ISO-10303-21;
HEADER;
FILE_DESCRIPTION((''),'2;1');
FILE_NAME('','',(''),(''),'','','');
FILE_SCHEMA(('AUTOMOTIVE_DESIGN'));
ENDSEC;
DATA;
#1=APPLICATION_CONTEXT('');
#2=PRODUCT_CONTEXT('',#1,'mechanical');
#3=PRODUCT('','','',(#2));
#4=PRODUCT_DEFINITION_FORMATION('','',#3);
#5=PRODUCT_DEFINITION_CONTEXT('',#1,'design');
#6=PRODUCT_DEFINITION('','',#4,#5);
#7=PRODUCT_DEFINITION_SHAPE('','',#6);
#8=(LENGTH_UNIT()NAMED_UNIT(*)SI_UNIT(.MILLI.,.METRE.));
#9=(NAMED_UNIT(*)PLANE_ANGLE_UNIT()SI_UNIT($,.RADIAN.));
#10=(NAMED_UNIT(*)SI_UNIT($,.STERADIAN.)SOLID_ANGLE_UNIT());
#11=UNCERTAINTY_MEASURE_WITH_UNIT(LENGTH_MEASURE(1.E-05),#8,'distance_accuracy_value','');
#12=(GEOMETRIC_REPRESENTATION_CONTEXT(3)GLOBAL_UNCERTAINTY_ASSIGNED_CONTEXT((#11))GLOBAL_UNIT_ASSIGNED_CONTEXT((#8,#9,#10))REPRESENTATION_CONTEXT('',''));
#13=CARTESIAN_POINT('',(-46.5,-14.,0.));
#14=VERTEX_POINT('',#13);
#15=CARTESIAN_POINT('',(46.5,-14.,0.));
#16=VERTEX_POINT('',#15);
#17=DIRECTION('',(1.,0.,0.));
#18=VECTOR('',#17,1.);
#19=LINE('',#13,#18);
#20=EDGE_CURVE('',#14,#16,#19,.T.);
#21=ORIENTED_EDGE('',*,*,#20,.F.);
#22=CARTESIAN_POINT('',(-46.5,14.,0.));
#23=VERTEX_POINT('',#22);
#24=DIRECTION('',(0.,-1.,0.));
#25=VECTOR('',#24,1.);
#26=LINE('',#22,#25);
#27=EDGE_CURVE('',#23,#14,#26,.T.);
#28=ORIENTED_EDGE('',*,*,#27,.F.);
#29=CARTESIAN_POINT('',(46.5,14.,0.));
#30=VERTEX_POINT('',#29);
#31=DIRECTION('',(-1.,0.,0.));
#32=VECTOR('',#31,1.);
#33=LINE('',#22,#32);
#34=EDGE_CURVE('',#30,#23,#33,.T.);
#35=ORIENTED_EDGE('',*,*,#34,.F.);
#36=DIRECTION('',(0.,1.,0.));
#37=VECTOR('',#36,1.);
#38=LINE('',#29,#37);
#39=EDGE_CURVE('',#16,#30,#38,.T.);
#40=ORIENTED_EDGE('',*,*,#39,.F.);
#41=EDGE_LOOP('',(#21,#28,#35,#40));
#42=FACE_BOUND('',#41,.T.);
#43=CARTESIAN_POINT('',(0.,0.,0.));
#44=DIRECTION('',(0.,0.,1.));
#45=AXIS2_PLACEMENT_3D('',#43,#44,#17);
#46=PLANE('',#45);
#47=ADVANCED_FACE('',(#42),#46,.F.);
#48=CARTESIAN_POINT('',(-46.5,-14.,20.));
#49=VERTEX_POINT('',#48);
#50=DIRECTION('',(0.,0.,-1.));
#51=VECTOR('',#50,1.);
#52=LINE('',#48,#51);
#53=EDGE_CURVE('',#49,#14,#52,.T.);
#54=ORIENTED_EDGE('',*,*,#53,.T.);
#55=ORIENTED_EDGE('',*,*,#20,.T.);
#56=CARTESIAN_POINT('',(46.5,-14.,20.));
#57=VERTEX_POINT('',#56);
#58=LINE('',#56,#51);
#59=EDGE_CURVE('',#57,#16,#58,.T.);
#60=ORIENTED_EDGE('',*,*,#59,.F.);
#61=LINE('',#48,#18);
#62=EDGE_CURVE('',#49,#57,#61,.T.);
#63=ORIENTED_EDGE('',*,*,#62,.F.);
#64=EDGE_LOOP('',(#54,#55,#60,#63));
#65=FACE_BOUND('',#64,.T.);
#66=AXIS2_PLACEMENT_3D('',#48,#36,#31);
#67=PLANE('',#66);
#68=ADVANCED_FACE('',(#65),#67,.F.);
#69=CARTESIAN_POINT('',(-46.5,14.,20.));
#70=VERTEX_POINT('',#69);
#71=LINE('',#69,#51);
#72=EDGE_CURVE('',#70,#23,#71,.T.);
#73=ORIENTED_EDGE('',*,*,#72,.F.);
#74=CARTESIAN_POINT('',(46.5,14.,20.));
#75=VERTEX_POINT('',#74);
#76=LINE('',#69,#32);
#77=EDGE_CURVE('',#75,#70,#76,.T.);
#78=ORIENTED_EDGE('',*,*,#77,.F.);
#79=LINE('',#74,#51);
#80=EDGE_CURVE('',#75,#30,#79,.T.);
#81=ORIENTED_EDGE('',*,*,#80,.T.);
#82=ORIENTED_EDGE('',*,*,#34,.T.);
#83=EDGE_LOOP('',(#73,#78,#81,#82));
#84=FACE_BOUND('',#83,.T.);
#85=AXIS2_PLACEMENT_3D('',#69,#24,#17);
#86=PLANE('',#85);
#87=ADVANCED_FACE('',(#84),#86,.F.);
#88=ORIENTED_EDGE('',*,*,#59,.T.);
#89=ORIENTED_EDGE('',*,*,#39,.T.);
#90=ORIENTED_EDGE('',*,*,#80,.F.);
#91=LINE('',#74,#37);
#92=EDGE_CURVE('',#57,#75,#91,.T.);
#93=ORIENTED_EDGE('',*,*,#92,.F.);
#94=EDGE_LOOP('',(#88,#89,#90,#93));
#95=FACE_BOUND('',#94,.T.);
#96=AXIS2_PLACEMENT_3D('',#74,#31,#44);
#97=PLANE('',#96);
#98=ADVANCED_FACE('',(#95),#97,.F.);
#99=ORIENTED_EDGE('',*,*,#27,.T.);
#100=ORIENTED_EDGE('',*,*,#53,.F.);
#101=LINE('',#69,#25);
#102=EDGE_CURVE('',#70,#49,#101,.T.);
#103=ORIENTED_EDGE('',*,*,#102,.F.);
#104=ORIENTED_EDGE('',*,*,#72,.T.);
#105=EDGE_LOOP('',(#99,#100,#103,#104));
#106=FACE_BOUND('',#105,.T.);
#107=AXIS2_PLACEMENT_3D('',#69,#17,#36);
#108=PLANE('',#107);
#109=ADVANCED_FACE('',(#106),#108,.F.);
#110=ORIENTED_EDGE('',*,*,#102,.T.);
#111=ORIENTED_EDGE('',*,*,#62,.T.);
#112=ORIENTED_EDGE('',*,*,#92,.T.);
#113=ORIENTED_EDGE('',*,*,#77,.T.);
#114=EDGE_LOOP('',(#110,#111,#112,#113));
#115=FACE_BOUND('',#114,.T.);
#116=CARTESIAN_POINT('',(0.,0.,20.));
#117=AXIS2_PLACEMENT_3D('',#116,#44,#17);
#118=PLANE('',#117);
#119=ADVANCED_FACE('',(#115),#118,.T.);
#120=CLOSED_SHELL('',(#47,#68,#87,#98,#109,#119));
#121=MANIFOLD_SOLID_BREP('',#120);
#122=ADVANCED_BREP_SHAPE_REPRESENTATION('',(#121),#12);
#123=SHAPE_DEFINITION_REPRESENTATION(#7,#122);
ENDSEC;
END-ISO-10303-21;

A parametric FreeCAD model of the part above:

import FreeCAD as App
import Part
import Sketcher
Q = App.Units.Quantity

doc = App.newDocument("Part")
body = doc.addObject("PartDesign::Body", "Body")

sketch1 = body.newObject("Sketcher::SketchObject", "Sketch")
sketch1.AttachmentSupport = (doc.getObject("XY_Plane"), [""])
sketch1.MapMode = "FlatFace"
sketch1.addGeometry([
    Part.LineSegment(App.Vector(-46, 14, 0), App.Vector(-46, -14, 0)),
    Part.LineSegment(App.Vector(-46, -14, 0), App.Vector(46, -14, 0)),
    Part.LineSegment(App.Vector(46, -14, 0), App.Vector(46, 14, 0)),
    Part.LineSegment(App.Vector(46, 14, 0), App.Vector(-46, 14, 0)),
], False)
sketch1.addConstraint([
    Sketcher.Constraint("Coincident", 0, 2, 1, 1),
    Sketcher.Constraint("Coincident", 1, 2, 2, 1),
    Sketcher.Constraint("Coincident", 2, 2, 3, 1),
    Sketcher.Constraint("Coincident", 3, 2, 0, 1),
    Sketcher.Constraint("Vertical", 0),
    Sketcher.Constraint("Horizontal", 1),
    Sketcher.Constraint("Vertical", 2),
    Sketcher.Constraint("Horizontal", 3),
    Sketcher.Constraint("Symmetric", 0, 2, 2, 2, -1, 1),
    Sketcher.Constraint("DistanceX", 1, 1, 1, 2, Q("93 mm")),
    Sketcher.Constraint("DistanceY", 0, 2, 0, 1, Q("28 mm")),
])
pad1 = body.newObject("PartDesign::Pad", "Pad")
pad1.Profile = sketch1
pad1.Length = 20

doc.recompute()
